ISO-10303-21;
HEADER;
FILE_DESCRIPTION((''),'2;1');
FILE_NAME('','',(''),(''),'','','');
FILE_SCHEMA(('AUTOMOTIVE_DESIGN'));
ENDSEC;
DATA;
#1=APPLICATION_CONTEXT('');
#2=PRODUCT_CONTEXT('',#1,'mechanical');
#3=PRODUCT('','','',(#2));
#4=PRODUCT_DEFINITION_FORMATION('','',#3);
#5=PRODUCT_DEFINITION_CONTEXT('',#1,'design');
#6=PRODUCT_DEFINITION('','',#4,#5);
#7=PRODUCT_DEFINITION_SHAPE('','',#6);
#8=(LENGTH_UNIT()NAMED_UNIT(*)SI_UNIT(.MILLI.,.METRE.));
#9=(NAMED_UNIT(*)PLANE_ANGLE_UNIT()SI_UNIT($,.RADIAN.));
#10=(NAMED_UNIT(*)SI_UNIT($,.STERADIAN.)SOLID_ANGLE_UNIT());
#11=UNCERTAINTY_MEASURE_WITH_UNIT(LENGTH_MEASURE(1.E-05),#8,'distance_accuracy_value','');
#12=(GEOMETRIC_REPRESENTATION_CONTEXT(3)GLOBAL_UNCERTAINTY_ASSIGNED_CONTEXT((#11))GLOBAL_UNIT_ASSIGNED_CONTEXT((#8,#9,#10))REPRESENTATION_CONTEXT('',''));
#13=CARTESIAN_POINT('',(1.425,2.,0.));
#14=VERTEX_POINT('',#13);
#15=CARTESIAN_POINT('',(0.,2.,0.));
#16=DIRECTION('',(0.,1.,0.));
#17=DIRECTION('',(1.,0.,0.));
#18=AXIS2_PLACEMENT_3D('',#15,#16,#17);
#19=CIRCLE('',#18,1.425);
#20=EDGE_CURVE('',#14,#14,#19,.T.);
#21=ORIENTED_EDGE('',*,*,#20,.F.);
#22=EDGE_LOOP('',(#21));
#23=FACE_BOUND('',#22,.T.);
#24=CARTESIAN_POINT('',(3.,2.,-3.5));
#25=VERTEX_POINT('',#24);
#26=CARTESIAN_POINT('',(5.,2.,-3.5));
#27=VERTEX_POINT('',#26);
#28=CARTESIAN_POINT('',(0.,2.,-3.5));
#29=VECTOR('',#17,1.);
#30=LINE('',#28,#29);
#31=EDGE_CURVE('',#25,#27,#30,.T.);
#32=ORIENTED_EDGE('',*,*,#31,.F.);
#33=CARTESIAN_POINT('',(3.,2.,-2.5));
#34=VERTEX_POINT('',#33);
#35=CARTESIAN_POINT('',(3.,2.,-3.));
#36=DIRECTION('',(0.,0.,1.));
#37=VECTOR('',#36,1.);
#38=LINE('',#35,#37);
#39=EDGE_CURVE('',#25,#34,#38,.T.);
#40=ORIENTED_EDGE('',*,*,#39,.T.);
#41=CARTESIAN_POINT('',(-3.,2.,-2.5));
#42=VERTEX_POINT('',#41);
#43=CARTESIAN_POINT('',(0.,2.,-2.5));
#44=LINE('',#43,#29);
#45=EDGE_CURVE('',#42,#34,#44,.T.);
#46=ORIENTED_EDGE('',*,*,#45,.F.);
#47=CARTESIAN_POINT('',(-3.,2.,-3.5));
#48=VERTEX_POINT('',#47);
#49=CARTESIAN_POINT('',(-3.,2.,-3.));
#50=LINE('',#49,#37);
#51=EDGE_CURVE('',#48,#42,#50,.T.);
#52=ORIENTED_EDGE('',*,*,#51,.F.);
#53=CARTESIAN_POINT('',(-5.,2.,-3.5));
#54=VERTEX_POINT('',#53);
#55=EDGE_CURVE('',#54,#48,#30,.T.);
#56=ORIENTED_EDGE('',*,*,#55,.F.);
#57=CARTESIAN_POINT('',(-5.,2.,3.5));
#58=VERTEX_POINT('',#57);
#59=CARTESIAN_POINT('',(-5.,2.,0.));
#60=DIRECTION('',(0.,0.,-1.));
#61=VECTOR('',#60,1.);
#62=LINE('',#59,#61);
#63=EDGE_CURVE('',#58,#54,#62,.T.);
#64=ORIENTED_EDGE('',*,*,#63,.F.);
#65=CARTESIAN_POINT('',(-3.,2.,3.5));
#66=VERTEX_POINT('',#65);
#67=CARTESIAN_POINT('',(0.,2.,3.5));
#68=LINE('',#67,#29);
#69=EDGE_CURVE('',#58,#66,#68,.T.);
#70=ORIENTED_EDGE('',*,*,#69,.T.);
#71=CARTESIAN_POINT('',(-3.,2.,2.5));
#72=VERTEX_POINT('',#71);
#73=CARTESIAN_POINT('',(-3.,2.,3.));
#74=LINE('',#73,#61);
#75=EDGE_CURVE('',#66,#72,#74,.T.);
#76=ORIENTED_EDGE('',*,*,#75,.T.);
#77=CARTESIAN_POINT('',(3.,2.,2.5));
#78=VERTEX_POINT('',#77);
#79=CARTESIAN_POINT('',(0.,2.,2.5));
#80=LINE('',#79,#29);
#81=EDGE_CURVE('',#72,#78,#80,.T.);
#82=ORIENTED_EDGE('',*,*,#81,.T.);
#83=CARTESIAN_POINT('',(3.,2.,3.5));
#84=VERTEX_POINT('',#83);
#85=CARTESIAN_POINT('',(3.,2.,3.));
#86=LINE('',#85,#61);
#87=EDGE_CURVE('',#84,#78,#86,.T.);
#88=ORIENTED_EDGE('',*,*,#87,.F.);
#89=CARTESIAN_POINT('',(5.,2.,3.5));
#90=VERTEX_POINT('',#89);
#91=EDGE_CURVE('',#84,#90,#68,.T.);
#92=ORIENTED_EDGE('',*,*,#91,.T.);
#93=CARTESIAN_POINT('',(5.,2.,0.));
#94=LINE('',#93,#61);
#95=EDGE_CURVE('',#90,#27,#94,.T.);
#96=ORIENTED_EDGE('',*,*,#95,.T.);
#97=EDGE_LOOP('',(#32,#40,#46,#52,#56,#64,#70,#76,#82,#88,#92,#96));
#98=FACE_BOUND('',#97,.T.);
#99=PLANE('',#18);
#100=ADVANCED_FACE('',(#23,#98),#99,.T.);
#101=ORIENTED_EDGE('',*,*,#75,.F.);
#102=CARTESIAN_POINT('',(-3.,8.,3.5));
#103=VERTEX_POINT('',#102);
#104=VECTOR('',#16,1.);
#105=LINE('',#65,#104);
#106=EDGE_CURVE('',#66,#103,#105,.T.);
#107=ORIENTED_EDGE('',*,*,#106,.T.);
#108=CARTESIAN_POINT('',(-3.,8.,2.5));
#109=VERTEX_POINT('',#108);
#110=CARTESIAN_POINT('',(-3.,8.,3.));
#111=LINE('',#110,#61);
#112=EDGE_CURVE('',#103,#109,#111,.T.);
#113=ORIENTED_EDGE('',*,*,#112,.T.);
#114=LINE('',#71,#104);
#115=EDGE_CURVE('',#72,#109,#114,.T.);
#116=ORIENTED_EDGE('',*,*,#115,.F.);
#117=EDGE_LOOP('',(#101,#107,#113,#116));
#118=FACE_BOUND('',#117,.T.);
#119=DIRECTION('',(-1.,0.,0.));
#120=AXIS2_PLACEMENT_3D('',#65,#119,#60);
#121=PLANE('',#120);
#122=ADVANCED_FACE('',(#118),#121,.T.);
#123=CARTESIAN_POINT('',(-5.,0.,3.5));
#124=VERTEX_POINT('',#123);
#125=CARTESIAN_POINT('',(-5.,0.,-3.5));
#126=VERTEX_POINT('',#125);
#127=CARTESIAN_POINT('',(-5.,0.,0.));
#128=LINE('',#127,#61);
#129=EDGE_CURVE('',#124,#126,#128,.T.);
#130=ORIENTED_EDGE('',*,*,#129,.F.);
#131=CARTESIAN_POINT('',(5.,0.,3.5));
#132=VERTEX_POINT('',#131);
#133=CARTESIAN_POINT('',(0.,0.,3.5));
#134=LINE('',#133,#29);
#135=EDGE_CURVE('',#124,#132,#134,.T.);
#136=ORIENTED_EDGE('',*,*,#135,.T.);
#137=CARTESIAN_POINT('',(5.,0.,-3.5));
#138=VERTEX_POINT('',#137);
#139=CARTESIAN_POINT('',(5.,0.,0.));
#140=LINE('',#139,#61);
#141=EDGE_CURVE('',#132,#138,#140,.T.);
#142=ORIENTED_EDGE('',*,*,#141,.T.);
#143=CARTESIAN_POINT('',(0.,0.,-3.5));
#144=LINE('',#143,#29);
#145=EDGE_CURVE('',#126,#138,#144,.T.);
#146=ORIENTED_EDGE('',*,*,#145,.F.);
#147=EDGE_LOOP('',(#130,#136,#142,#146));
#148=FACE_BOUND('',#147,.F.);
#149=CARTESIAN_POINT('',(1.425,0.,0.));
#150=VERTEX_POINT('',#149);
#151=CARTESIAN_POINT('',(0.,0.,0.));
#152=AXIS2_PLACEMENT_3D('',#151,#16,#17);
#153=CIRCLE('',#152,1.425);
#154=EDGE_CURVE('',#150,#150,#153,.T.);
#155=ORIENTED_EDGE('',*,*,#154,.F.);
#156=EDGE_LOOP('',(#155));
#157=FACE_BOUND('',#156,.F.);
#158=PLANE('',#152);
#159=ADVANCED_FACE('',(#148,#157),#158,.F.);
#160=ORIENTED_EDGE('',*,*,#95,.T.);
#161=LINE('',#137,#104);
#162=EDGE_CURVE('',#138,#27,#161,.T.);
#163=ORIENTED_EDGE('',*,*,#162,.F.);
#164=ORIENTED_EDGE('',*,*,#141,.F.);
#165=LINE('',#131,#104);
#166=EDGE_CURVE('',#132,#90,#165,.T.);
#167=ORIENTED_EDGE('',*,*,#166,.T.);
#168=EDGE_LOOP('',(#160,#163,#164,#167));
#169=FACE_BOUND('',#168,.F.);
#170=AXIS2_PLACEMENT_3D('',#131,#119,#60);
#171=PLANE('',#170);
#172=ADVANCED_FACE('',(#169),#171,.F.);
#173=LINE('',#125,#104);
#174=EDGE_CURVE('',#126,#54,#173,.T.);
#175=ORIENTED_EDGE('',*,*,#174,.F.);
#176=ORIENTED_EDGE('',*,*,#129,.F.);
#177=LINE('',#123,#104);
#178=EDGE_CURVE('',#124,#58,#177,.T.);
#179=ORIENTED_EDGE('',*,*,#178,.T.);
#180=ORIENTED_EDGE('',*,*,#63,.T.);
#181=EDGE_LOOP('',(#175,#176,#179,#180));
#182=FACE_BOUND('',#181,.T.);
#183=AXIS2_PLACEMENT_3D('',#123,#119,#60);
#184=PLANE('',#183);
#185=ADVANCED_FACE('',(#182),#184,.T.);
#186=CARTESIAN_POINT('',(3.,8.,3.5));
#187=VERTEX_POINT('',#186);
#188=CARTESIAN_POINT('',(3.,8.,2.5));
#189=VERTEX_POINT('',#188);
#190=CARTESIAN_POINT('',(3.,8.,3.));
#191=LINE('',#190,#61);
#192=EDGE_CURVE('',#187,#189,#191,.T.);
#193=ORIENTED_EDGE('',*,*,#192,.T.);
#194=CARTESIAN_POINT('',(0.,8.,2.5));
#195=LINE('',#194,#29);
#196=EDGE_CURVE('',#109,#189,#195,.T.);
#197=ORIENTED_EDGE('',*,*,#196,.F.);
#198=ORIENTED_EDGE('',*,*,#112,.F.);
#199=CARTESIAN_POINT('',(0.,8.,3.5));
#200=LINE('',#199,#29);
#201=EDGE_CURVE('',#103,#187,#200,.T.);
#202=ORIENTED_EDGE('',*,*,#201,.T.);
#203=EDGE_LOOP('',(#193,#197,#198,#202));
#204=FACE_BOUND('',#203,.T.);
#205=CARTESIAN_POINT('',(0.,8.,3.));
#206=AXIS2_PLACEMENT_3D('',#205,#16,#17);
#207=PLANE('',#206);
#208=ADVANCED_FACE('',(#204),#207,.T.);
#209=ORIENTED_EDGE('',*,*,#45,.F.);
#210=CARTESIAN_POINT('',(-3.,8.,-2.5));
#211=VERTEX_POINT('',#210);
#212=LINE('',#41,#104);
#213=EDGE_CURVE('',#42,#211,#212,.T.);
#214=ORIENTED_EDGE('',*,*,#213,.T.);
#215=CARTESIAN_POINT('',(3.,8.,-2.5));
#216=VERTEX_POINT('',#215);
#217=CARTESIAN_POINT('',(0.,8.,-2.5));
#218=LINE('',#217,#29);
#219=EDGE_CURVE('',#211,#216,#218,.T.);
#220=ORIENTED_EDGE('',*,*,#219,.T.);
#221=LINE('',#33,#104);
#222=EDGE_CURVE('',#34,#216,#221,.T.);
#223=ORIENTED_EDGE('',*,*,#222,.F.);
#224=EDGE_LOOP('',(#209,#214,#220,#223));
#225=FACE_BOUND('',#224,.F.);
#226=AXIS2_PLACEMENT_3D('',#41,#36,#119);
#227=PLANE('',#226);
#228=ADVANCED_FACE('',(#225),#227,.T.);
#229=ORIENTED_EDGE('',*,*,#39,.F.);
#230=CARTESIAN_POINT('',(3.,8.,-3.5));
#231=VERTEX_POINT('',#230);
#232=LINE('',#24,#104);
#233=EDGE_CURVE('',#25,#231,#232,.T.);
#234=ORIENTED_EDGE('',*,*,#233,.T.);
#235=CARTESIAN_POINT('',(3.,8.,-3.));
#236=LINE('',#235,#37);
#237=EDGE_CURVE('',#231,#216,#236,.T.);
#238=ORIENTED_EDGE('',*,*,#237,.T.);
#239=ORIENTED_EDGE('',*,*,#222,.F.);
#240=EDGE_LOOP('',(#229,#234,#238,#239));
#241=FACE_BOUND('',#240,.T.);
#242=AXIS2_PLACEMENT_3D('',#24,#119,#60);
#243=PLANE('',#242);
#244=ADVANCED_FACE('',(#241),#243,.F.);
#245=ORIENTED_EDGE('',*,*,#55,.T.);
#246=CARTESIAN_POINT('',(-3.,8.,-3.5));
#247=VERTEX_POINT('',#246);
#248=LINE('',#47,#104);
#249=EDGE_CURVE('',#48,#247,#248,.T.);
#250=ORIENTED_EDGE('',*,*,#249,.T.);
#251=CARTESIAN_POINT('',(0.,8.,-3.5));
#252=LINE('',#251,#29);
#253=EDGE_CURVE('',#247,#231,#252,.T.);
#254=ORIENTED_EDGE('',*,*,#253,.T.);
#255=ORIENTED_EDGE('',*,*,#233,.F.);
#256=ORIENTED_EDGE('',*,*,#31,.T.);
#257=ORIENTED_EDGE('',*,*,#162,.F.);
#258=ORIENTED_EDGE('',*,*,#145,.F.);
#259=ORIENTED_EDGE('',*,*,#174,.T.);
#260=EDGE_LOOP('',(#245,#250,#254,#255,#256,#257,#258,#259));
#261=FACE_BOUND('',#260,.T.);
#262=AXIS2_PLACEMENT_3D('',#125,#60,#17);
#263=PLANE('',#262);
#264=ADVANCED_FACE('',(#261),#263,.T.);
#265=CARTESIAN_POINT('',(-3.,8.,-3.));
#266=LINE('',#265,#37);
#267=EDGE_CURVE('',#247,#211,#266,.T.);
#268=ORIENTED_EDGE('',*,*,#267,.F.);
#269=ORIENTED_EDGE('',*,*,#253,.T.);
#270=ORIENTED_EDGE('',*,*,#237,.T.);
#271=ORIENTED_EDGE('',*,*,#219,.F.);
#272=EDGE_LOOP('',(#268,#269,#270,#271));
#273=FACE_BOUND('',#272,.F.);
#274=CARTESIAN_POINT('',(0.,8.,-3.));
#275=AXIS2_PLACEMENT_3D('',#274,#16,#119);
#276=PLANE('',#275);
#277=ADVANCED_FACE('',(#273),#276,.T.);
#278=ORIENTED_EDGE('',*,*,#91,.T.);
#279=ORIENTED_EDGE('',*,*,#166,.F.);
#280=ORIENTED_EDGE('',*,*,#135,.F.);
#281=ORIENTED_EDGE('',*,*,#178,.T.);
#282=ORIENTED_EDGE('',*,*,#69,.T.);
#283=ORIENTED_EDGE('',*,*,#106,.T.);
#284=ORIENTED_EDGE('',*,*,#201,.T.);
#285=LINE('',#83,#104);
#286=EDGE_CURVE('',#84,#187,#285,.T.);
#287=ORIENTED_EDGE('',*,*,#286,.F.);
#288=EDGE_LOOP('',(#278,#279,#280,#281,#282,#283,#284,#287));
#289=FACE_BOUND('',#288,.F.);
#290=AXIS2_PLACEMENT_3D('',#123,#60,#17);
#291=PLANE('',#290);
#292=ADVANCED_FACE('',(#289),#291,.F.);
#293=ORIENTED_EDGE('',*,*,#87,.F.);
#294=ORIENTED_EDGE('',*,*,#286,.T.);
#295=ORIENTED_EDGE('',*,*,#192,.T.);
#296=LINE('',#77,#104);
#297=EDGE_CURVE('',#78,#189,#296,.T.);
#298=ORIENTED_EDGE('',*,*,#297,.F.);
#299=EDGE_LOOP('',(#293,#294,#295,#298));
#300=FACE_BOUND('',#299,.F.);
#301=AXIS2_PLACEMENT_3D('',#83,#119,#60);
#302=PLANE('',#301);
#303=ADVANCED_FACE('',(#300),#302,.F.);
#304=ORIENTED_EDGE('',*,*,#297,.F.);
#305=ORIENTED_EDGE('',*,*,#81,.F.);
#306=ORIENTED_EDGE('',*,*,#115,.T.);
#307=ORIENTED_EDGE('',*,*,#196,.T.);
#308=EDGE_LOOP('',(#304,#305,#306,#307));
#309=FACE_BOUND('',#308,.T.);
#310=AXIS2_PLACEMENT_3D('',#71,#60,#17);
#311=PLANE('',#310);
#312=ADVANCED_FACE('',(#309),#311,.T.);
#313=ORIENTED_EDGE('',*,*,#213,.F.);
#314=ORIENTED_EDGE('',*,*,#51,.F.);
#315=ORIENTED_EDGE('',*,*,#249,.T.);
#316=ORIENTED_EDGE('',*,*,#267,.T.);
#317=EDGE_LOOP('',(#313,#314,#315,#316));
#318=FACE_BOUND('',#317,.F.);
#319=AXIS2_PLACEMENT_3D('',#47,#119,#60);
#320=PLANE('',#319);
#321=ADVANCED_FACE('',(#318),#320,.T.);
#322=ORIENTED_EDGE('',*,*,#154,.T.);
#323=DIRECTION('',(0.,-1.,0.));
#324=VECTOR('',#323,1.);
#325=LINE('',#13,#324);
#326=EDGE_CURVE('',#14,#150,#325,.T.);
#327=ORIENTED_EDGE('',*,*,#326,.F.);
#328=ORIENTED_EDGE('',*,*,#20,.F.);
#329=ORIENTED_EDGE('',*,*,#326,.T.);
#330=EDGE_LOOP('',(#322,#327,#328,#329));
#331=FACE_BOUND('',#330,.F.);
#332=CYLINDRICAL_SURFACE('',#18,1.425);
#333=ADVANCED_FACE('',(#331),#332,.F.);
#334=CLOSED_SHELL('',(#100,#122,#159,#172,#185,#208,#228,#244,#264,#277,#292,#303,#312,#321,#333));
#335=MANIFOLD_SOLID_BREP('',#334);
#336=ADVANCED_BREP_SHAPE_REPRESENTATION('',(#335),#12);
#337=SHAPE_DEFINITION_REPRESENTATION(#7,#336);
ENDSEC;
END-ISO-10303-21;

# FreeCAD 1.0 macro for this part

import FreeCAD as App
import Part
import Sketcher

V = App.Vector

doc = App.newDocument("Part")
params = doc.addObject("Spreadsheet::Sheet", "Params")
for row, (alias, value) in enumerate([
    ("sketch1_width", "10 mm"),
    ("sketch1_height", "7 mm"),
    ("pad1_length", "2 mm"),
    ("sketch2_diameter", "2.85 mm"),
    ("pocket1_length", "2 mm"),
    ("sketch3_width", "6 mm"),
    ("sketch3_height", "1 mm"),
    ("pad2_length", "6 mm"),
], start=1):
    params.set(f"A{row}", alias)
    params.set(f"B{row}", "=" + value)
    params.setAlias(f"B{row}", alias)

body = doc.addObject("PartDesign::Body", "Body")

# Sketch on XZ plane
sketch1 = body.newObject("Sketcher::SketchObject", "Sketch")
sketch1.AttachmentSupport = (doc.getObject("XZ_Plane"), [""])
sketch1.MapMode = "FlatFace"
sketch1.addGeometry([
    Part.LineSegment(V(-5, -3.5, 0), V(-5, 3.5, 0)),
    Part.LineSegment(V(-5, 3.5, 0), V(5, 3.5, 0)),
    Part.LineSegment(V(5, 3.5, 0), V(5, -3.5, 0)),
    Part.LineSegment(V(5, -3.5, 0), V(-5, -3.5, 0)),
], False)
sketch1.addConstraint([
    Sketcher.Constraint("Coincident", 0, 2, 1, 1),
    Sketcher.Constraint("Coincident", 1, 2, 2, 1),
    Sketcher.Constraint("Coincident", 2, 2, 3, 1),
    Sketcher.Constraint("Coincident", 3, 2, 0, 1),
    Sketcher.Constraint("Vertical", 0),
    Sketcher.Constraint("Horizontal", 1),
    Sketcher.Constraint("Vertical", 2),
    Sketcher.Constraint("Horizontal", 3),
    Sketcher.Constraint("Symmetric", 0, 2, 2, 2, -1, 1),
    Sketcher.Constraint("DistanceX", 1, 1, 1, 2, 10.0),
    Sketcher.Constraint("DistanceY", 0, 1, 0, 2, 7.0),
])
sketch1.setExpression("Constraints[9]", "Params.sketch1_width")
sketch1.setExpression("Constraints[10]", "Params.sketch1_height")
pad1 = body.newObject("PartDesign::Pad", "Pad")
pad1.Profile = sketch1
pad1.setExpression("Length", "Params.pad1_length")
pad1.Reversed = True

# Sketch on XZ plane
sketch2 = body.newObject("Sketcher::SketchObject", "Sketch001")
sketch2.AttachmentSupport = (doc.getObject("XZ_Plane"), [""])
sketch2.MapMode = "FlatFace"
sketch2.AttachmentOffset = App.Placement(V(0, 0, -2), App.Rotation())
sketch2.addGeometry(Part.Circle(V(0, 0, 0), V(0, 0, 1), 1.425), False)
sketch2.addConstraint([
    Sketcher.Constraint("Coincident", 0, 3, -1, 1),
    Sketcher.Constraint("Diameter", 0, 2.85),
])
sketch2.setExpression("Constraints[1]", "Params.sketch2_diameter")
pocket1 = body.newObject("PartDesign::Pocket", "Pocket")
pocket1.Profile = sketch2
pocket1.setExpression("Length", "Params.pocket1_length")
pocket1.Reversed = True

# Sketch on XZ plane
sketch3 = body.newObject("Sketcher::SketchObject", "Sketch002")
sketch3.AttachmentSupport = (doc.getObject("XZ_Plane"), [""])
sketch3.MapMode = "FlatFace"
sketch3.AttachmentOffset = App.Placement(V(0, 0, -2), App.Rotation())
sketch3.addGeometry([
    Part.LineSegment(V(-3, 2.5, 0), V(-3, 3.5, 0)),
    Part.LineSegment(V(-3, 3.5, 0), V(3, 3.5, 0)),
    Part.LineSegment(V(3, 3.5, 0), V(3, 2.5, 0)),
    Part.LineSegment(V(3, 2.5, 0), V(-3, 2.5, 0)),
], False)
sketch3.addConstraint([
    Sketcher.Constraint("Coincident", 0, 2, 1, 1),
    Sketcher.Constraint("Coincident", 1, 2, 2, 1),
    Sketcher.Constraint("Coincident", 2, 2, 3, 1),
    Sketcher.Constraint("Coincident", 3, 2, 0, 1),
    Sketcher.Constraint("Vertical", 0),
    Sketcher.Constraint("Horizontal", 1),
    Sketcher.Constraint("Vertical", 2),
    Sketcher.Constraint("Horizontal", 3),
    Sketcher.Constraint("DistanceX", 1, 1, 1, 2, 6.0),
    Sketcher.Constraint("DistanceY", 0, 1, 0, 2, 1.0),
    Sketcher.Constraint("DistanceX", 0, 2, -1, 1, 3.0),
    Sketcher.Constraint("DistanceY", -1, 1, 0, 2, 3.5),
])
sketch3.setExpression("Constraints[8]", "Params.sketch3_width")
sketch3.setExpression("Constraints[9]", "Params.sketch3_height")
pad2 = body.newObject("PartDesign::Pad", "Pad001")
pad2.Profile = sketch3
pad2.setExpression("Length", "Params.pad2_length")
pad2.Reversed = True
doc.recompute()

mirrored = body.newObject("PartDesign::Mirrored", "Mirrored")
mirrored.Originals = [pad2]
mirrored.MirrorPlane = (doc.getObject("XY_Plane"), [""])
body.Tip = mirrored

doc.recompute()
